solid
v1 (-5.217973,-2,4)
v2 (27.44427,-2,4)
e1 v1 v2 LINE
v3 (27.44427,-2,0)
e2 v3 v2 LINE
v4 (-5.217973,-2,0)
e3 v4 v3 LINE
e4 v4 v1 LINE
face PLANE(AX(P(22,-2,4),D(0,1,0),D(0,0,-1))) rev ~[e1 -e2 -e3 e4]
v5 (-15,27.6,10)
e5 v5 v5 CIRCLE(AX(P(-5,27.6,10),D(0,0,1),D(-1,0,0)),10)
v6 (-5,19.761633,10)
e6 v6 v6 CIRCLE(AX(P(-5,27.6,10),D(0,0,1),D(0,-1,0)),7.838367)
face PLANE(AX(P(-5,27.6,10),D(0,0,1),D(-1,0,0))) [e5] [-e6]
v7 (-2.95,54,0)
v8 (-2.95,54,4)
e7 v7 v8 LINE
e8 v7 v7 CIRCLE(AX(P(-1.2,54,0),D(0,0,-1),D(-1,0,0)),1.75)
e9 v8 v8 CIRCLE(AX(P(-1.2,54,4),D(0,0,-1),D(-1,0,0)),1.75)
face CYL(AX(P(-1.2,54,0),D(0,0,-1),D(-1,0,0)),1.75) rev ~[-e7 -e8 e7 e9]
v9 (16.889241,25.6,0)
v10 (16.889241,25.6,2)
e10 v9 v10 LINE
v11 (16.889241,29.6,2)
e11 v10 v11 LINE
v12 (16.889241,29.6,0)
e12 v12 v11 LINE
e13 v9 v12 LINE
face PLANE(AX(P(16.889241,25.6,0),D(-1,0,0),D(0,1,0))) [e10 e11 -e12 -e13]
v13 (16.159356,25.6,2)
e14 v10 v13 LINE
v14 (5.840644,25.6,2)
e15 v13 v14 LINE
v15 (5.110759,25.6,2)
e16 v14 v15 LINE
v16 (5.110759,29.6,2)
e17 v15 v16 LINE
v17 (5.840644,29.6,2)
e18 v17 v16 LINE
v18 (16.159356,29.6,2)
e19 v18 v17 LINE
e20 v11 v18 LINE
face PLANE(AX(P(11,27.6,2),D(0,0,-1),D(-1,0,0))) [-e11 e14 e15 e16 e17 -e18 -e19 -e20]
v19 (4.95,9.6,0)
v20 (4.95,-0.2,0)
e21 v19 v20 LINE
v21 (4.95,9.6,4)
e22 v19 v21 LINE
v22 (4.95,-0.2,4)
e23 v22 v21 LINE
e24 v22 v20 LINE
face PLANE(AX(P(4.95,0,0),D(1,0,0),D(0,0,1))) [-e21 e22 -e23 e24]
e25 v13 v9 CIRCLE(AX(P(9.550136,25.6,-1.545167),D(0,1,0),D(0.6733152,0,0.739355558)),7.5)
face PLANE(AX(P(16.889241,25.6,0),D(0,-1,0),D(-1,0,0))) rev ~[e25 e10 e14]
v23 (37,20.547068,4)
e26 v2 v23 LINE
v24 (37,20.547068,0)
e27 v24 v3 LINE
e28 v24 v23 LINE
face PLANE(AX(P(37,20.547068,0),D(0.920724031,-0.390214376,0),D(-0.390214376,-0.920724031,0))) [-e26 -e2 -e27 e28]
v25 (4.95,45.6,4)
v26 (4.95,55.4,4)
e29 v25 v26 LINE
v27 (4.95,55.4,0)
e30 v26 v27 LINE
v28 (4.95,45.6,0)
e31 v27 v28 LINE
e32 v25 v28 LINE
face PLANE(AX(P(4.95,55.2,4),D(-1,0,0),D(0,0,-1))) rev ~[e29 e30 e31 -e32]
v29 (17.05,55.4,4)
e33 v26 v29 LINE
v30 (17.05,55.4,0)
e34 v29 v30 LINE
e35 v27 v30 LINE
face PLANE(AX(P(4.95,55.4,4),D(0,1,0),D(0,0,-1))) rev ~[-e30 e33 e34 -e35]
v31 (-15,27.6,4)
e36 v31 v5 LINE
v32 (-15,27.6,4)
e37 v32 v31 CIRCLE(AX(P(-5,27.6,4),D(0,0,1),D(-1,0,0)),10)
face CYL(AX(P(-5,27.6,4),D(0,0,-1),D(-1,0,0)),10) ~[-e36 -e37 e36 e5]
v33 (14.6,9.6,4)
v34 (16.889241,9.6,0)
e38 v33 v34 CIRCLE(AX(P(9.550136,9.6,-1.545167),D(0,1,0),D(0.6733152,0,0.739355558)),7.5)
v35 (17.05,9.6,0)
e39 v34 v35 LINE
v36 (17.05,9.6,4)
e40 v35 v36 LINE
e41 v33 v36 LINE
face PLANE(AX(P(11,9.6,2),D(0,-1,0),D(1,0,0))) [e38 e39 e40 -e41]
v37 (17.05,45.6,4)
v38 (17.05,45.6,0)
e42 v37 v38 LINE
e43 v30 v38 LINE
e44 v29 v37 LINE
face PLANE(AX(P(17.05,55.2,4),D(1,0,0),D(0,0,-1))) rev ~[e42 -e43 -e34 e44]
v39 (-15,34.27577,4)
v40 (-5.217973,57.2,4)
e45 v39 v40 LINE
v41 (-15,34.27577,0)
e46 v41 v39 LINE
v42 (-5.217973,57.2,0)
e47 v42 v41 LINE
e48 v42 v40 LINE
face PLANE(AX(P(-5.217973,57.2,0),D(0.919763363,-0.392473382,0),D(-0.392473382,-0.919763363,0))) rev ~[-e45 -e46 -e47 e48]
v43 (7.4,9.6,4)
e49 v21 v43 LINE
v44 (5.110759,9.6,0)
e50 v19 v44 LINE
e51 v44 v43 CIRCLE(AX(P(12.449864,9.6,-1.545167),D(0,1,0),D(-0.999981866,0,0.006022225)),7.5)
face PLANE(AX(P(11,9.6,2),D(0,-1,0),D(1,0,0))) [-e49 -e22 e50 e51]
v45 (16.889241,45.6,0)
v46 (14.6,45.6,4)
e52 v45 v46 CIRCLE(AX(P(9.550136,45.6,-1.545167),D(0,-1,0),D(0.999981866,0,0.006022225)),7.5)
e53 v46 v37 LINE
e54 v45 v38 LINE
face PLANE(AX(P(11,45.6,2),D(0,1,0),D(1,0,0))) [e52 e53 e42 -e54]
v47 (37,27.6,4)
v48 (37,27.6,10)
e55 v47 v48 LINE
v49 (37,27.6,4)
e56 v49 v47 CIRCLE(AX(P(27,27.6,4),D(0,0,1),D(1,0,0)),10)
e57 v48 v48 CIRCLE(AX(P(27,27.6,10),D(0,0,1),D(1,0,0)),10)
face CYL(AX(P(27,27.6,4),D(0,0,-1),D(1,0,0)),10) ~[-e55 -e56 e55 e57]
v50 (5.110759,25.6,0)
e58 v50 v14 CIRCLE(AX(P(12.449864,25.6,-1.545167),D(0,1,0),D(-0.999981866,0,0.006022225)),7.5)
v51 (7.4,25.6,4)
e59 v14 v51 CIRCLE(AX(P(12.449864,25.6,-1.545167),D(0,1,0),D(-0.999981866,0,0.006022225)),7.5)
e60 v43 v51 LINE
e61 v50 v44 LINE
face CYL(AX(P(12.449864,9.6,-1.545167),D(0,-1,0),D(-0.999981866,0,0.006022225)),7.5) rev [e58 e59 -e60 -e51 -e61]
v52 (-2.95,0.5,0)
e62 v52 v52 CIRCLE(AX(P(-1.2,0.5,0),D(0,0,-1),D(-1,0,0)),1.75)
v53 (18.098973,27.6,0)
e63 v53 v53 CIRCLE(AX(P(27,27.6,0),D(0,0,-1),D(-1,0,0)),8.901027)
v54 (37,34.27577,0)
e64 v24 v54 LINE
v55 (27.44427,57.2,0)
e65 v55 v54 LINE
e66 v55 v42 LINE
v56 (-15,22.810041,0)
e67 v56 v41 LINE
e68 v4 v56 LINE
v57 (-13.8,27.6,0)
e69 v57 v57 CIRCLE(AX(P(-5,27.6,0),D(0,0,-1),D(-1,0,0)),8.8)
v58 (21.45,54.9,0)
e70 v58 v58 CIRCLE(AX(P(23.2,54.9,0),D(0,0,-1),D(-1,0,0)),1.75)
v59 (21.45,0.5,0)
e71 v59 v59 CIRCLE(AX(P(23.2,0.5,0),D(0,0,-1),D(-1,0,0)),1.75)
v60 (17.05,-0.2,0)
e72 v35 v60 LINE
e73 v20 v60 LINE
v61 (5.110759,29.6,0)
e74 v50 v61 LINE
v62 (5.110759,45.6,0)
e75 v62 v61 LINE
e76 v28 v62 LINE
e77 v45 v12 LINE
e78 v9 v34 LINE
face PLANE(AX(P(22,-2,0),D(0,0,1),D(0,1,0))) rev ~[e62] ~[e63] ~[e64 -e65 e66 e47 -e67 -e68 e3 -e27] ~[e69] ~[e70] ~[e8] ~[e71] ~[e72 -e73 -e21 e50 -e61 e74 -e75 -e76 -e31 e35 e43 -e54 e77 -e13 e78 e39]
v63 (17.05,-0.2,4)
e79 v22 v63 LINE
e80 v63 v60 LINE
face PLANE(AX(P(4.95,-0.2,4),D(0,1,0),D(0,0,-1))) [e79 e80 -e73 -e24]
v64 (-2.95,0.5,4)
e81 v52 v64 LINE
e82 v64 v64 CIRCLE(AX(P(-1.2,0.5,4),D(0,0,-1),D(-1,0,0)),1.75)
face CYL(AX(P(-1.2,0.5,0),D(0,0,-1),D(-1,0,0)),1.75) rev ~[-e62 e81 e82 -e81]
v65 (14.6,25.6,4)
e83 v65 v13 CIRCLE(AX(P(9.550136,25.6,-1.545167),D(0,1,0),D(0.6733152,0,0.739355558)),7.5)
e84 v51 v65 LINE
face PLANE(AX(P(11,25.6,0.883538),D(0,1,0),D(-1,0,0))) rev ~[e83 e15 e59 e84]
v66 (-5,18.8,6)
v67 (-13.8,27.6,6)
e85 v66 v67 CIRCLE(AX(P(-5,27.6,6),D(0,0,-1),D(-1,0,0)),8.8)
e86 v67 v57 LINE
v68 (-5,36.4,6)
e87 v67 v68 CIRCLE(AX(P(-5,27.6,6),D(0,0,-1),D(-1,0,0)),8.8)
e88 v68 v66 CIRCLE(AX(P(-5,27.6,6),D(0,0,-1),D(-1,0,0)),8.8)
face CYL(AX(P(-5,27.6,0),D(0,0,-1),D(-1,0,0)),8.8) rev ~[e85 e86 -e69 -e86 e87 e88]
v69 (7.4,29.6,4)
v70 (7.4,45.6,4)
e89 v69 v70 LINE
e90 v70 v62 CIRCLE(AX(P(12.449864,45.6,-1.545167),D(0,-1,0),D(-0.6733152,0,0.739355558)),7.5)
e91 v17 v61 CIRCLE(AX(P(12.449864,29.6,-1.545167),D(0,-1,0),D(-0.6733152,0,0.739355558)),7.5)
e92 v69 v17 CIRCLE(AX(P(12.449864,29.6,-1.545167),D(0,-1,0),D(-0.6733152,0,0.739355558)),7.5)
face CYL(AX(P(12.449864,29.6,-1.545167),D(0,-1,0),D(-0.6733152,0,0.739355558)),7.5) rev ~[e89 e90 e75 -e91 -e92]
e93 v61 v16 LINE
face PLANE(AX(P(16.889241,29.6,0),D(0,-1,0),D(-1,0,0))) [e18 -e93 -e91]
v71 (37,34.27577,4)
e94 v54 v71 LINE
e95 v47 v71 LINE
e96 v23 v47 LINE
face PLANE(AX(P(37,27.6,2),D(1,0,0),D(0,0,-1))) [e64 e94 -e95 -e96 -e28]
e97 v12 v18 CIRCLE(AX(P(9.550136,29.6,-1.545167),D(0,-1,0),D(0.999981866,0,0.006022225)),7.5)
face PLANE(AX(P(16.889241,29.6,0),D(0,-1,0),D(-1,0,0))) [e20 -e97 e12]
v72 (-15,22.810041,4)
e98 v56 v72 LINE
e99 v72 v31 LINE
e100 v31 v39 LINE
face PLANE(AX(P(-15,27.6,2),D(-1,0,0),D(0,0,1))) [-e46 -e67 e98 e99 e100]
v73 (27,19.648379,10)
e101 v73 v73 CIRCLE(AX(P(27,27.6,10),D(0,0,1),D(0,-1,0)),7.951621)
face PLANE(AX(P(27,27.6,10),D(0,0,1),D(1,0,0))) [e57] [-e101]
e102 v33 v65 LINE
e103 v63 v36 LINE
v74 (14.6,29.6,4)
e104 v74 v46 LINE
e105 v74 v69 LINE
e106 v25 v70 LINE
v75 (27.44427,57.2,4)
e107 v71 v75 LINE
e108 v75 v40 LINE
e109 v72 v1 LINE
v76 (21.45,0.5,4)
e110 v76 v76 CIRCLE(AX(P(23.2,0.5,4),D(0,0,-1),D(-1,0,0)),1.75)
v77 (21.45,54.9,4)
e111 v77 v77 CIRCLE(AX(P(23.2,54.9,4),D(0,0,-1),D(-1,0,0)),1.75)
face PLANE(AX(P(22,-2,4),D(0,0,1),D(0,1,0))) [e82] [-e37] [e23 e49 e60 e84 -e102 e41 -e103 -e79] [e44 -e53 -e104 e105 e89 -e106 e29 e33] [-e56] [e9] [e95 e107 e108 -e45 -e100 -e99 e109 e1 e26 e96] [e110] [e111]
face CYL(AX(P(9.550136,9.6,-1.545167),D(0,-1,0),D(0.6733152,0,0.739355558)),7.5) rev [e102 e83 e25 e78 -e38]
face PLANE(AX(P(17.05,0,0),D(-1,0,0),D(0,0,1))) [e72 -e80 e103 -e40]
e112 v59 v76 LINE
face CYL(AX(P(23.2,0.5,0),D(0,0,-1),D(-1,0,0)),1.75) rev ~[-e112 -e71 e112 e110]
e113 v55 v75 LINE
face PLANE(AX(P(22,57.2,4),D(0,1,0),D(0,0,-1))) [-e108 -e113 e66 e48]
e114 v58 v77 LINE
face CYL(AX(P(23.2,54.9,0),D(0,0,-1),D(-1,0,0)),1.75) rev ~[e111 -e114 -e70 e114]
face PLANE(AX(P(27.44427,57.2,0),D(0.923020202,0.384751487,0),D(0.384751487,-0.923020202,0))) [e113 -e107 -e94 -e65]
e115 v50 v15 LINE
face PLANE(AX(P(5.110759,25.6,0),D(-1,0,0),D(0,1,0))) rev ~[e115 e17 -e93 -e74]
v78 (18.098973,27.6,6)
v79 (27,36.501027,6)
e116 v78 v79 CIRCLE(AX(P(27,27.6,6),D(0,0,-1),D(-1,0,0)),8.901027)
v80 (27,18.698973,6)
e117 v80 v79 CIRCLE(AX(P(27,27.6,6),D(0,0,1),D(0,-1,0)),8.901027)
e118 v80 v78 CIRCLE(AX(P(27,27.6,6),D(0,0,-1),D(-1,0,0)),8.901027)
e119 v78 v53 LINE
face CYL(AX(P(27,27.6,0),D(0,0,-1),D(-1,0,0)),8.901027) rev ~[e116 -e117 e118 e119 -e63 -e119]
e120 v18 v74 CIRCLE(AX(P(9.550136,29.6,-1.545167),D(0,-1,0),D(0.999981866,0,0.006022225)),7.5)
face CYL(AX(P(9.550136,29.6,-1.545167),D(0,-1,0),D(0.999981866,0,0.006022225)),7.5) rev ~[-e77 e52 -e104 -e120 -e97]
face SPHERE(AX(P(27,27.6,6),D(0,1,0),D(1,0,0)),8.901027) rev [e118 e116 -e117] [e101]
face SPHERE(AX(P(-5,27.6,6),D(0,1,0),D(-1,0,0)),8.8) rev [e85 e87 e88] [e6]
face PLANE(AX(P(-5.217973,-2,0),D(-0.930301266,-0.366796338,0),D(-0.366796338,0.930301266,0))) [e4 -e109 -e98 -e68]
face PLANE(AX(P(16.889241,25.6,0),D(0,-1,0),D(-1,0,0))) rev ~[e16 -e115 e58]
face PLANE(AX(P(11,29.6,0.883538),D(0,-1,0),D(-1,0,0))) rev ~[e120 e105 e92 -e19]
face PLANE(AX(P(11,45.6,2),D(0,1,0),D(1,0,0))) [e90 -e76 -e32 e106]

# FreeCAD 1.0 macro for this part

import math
import FreeCAD as App
import Part
import Sketcher

V = App.Vector
Q = App.Units.Quantity

doc = App.newDocument("Part")
body = doc.addObject("PartDesign::Body", "Body")

sketch1 = doc.addObject("Sketcher::SketchObject", "Sketch")
body.addObject(sketch1)
sketch1.AttachmentSupport = (doc.XY_Plane, [""])
sketch1.MapMode = "FlatFace"
sketch1.addGeometry([
    Part.LineSegment(V(0, 55.2, 0), V(0, 0, 0)),
    Part.LineSegment(V(0, 0, 0), V(22, 0, 0)),
    Part.LineSegment(V(22, 0, 0), V(22, 55.2, 0)),
    Part.LineSegment(V(22, 55.2, 0), V(0, 55.2, 0)),
], False)
sketch1.addConstraint([
    Sketcher.Constraint("Coincident", 0, 2, 1, 1),
    Sketcher.Constraint("Coincident", 1, 2, 2, 1),
    Sketcher.Constraint("Coincident", 2, 2, 3, 1),
    Sketcher.Constraint("Coincident", 3, 2, 0, 1),
    Sketcher.Constraint("Vertical", 0),
    Sketcher.Constraint("Horizontal", 1),
    Sketcher.Constraint("Vertical", 2),
    Sketcher.Constraint("Horizontal", 3),
    Sketcher.Constraint("Coincident", 0, 2, -1, 1),
    Sketcher.Constraint("DistanceX", 1, 1, 1, 2, Q("22 mm")),
    Sketcher.Constraint("DistanceY", 0, 2, 0, 1, Q("55.2 mm")),
])
pad1 = doc.addObject("PartDesign::Pad", "Pad")
body.addObject(pad1)
pad1.Profile = sketch1
pad1.Length = 4

sketch2 = doc.addObject("Sketcher::SketchObject", "Sketch001")
body.addObject(sketch2)
sketch2.AttachmentSupport = (doc.XZ_Plane, [""])
sketch2.MapMode = "FlatFace"
sketch2.AttachmentOffset = App.Placement(V(0, 0, -55.2), App.Rotation())
sketch2.addGeometry([
    Part.LineSegment(V(4.95, 0, 0), V(4.95, 4, 0)),
    Part.LineSegment(V(4.95, 4, 0), V(17.05, 4, 0)),
    Part.LineSegment(V(17.05, 4, 0), V(17.05, 0, 0)),
    Part.LineSegment(V(17.05, 0, 0), V(4.95, 0, 0)),
], False)
sketch2.addConstraint([
    Sketcher.Constraint("Coincident", 0, 2, 1, 1),
    Sketcher.Constraint("Coincident", 1, 2, 2, 1),
    Sketcher.Constraint("Coincident", 2, 2, 3, 1),
    Sketcher.Constraint("Coincident", 3, 2, 0, 1),
    Sketcher.Constraint("Vertical", 0),
    Sketcher.Constraint("Horizontal", 1),
    Sketcher.Constraint("Vertical", 2),
    Sketcher.Constraint("Horizontal", 3),
    Sketcher.Constraint("PointOnObject", 2, 2, -1),
    Sketcher.Constraint("DistanceY", 0, 1, 0, 2, Q("4 mm")),
    Sketcher.Constraint("DistanceX", 1, 1, 1, 2, Q("12.1 mm")),
    Sketcher.Constraint("DistanceX", -1, 1, 0, 2, Q("4.95 mm")),
])
pocket1 = doc.addObject("PartDesign::Pocket", "Pocket")
body.addObject(pocket1)
pocket1.Profile = sketch2
pocket1.Length = 9.6
pocket1.Reversed = True

sketch3 = doc.addObject("Sketcher::SketchObject", "Sketch002")
body.addObject(sketch3)
sketch3.AttachmentSupport = (doc.XZ_Plane, [""])
sketch3.MapMode = "FlatFace"
sketch3.addGeometry([
    Part.LineSegment(V(4.95, 4, 0), V(4.95, 0, 0)),
    Part.LineSegment(V(4.95, 0, 0), V(17.05, 0, 0)),
    Part.LineSegment(V(17.05, 0, 0), V(17.05, 4, 0)),
    Part.LineSegment(V(17.05, 4, 0), V(4.95, 4, 0)),
], False)
sketch3.addConstraint([
    Sketcher.Constraint("Coincident", 0, 2, 1, 1),
    Sketcher.Constraint("Coincident", 1, 2, 2, 1),
    Sketcher.Constraint("Coincident", 2, 2, 3, 1),
    Sketcher.Constraint("Coincident", 3, 2, 0, 1),
    Sketcher.Constraint("Vertical", 0),
    Sketcher.Constraint("Horizontal", 1),
    Sketcher.Constraint("Vertical", 2),
    Sketcher.Constraint("Horizontal", 3),
    Sketcher.Constraint("PointOnObject", 0, 2, -1),
    Sketcher.Constraint("DistanceY", 0, 2, 0, 1, Q("4 mm")),
    Sketcher.Constraint("DistanceX", 1, 1, 1, 2, Q("12.1 mm")),
    Sketcher.Constraint("DistanceX", -1, 1, 0, 2, Q("4.95 mm")),
])
pocket2 = doc.addObject("PartDesign::Pocket", "Pocket001")
body.addObject(pocket2)
pocket2.Profile = sketch3
pocket2.Length = 9.6

sketch4 = doc.addObject("Sketcher::SketchObject", "Sketch003")
body.addObject(sketch4)
sketch4.AttachmentSupport = (doc.XZ_Plane, [""])
sketch4.MapMode = "FlatFace"
sketch4.AttachmentOffset = App.Placement(V(0, 0, -9.6), App.Rotation())
sketch4.addGeometry([
    Part.LineSegment(V(14.6, 4, 0), V(7.4, 4, 0)),
    Part.ArcOfCircle(Part.Circle(V(12.449864, -1.545167, 0), V(0, 0, 1), 7.5), math.radians(132.323452), math.radians(179.65495)),
    Part.LineSegment(V(4.95, -1.5, 0), V(17.05, -1.5, 0)),
    Part.ArcOfCircle(Part.Circle(V(9.550136, -1.545167, 0), V(0, 0, 1), 7.5), math.radians(0.34505), math.radians(47.676548)),
], False)
sketch4.addConstraint([
    Sketcher.Constraint("Coincident", 0, 2, 1, 1),
    Sketcher.Constraint("Coincident", 1, 2, 2, 1),
    Sketcher.Constraint("Coincident", 2, 2, 3, 1),
    Sketcher.Constraint("Coincident", 3, 2, 0, 1),
    Sketcher.Constraint("Horizontal", 0),
    Sketcher.Constraint("Horizontal", 2),
    Sketcher.Constraint("Equal", 1, 3),
    Sketcher.Constraint("Horizontal", 1, 3, 3, 3),
    Sketcher.Constraint("Radius", 1, Q("7.5 mm")),
    Sketcher.Constraint("DistanceX", 0, 2, 0, 1, Q("7.2 mm")),
    Sketcher.Constraint("DistanceX", 2, 1, 2, 2, Q("12.1 mm")),
    Sketcher.Constraint("DistanceY", -1, 1, 0, 2, Q("4 mm")),
    Sketcher.Constraint("DistanceX", -1, 1, 0, 2, Q("7.4 mm")),
    Sketcher.Constraint("DistanceY", 1, 2, -1, 1, Q("1.5 mm")),
])
pocket3 = doc.addObject("PartDesign::Pocket", "Pocket002")
body.addObject(pocket3)
pocket3.Profile = sketch4
pocket3.Length = 16

sketch5 = doc.addObject("Sketcher::SketchObject", "Sketch004")
body.addObject(sketch5)
sketch5.AttachmentSupport = (doc.XZ_Plane, [""])
sketch5.MapMode = "FlatFace"
sketch5.AttachmentOffset = App.Placement(V(0, 0, -29.6), App.Rotation())
sketch5.addGeometry([
    Part.LineSegment(V(17.05, -1.5, 0), V(4.95, -1.5, 0)),
    Part.ArcOfCircle(Part.Circle(V(12.449864, -1.545167, 0), V(0, 0, 1), 7.5), math.radians(132.323452), math.radians(179.65495)),
    Part.LineSegment(V(7.4, 4, 0), V(14.6, 4, 0)),
    Part.ArcOfCircle(Part.Circle(V(9.550136, -1.545167, 0), V(0, 0, 1), 7.5), math.radians(0.34505), math.radians(47.676548)),
], False)
sketch5.addConstraint([
    Sketcher.Constraint("Coincident", 0, 2, 1, 2),
    Sketcher.Constraint("Coincident", 1, 1, 2, 1),
    Sketcher.Constraint("Coincident", 2, 2, 3, 2),
    Sketcher.Constraint("Coincident", 3, 1, 0, 1),
    Sketcher.Constraint("Horizontal", 0),
    Sketcher.Constraint("Horizontal", 2),
    Sketcher.Constraint("Equal", 1, 3),
    Sketcher.Constraint("Horizontal", 1, 3, 3, 3),
    Sketcher.Constraint("Radius", 1, Q("7.5 mm")),
    Sketcher.Constraint("DistanceX", 0, 2, 0, 1, Q("12.1 mm")),
    Sketcher.Constraint("DistanceX", 2, 1, 2, 2, Q("7.2 mm")),
    Sketcher.Constraint("DistanceY", -1, 1, 1, 1, Q("4 mm")),
    Sketcher.Constraint("DistanceY", 0, 2, -1, 1, Q("1.5 mm")),
    Sketcher.Constraint("DistanceX", -1, 1, 1, 1, Q("7.4 mm")),
])
pocket4 = doc.addObject("PartDesign::Pocket", "Pocket003")
body.addObject(pocket4)
pocket4.Profile = sketch5
pocket4.Length = 16

sketch6 = doc.addObject("Sketcher::SketchObject", "Sketch005")
body.addObject(sketch6)
sketch6.AttachmentSupport = (doc.XY_Plane, [""])
sketch6.MapMode = "FlatFace"
sketch6.addGeometry([
    Part.LineSegment(V(16.889241, 29.6, 0), V(16.889241, 25.6, 0)),
    Part.LineSegment(V(16.889241, 25.6, 0), V(5.110759, 25.6, 0)),
    Part.LineSegment(V(5.110759, 25.6, 0), V(5.110759, 29.6, 0)),
    Part.LineSegment(V(5.110759, 29.6, 0), V(16.889241, 29.6, 0)),
], False)
sketch6.addConstraint([
    Sketcher.Constraint("Coincident", 0, 2, 1, 1),
    Sketcher.Constraint("Coincident", 1, 2, 2, 1),
    Sketcher.Constraint("Coincident", 2, 2, 3, 1),
    Sketcher.Constraint("Coincident", 3, 2, 0, 1),
    Sketcher.Constraint("Vertical", 0),
    Sketcher.Constraint("Horizontal", 1),
    Sketcher.Constraint("Vertical", 2),
    Sketcher.Constraint("Horizontal", 3),
    Sketcher.Constraint("DistanceY", 0, 2, 0, 1, Q("4 mm")),
    Sketcher.Constraint("DistanceY", -1, 1, 0, 2, Q("25.6 mm")),
    Sketcher.Constraint("DistanceX", 1, 2, 1, 1, Q("11.778482 mm")),
    Sketcher.Constraint("DistanceX", -1, 1, 0, 2, Q("16.889241 mm")),
])
pocket5 = doc.addObject("PartDesign::Pocket", "Pocket004")
body.addObject(pocket5)
pocket5.Profile = sketch6
pocket5.Length = 2
pocket5.Reversed = True

sketch7 = doc.addObject("Sketcher::SketchObject", "Sketch006")
body.addObject(sketch7)
sketch7.AttachmentSupport = (doc.XZ_Plane, [""])
sketch7.MapMode = "FlatFace"
sketch7.AttachmentOffset = App.Placement(V(0, 0, -55.2), App.Rotation())
sketch7.addGeometry([
    Part.LineSegment(V(0, 0, 0), V(0, 4, 0)),
    Part.LineSegment(V(0, 4, 0), V(4.95, 4, 0)),
    Part.LineSegment(V(4.95, 4, 0), V(4.95, 0, 0)),
    Part.LineSegment(V(4.95, 0, 0), V(0, 0, 0)),
    Part.LineSegment(V(17.05, 0, 0), V(17.05, 4, 0)),
    Part.LineSegment(V(17.05, 4, 0), V(22, 4, 0)),
    Part.LineSegment(V(22, 4, 0), V(22, 0, 0)),
    Part.LineSegment(V(22, 0, 0), V(17.05, 0, 0)),
], False)
sketch7.addConstraint([
    Sketcher.Constraint("Coincident", 0, 2, 1, 1),
    Sketcher.Constraint("Coincident", 1, 2, 2, 1),
    Sketcher.Constraint("Coincident", 2, 2, 3, 1),
    Sketcher.Constraint("Coincident", 3, 2, 0, 1),
    Sketcher.Constraint("Coincident", 4, 2, 5, 1),
    Sketcher.Constraint("Coincident", 5, 2, 6, 1),
    Sketcher.Constraint("Coincident", 6, 2, 7, 1),
    Sketcher.Constraint("Coincident", 7, 2, 4, 1),
    Sketcher.Constraint("Vertical", 0),
    Sketcher.Constraint("Horizontal", 1),
    Sketcher.Constraint("Vertical", 2),
    Sketcher.Constraint("Horizontal", 3),
    Sketcher.Constraint("Vertical", 4),
    Sketcher.Constraint("Horizontal", 5),
    Sketcher.Constraint("Vertical", 6),
    Sketcher.Constraint("Horizontal", 7),
    Sketcher.Constraint("Coincident", 3, 2, -1, 1),
    Sketcher.Constraint("PointOnObject", 6, 2, -1),
    Sketcher.Constraint("Horizontal", 1, 2, 4, 2),
    Sketcher.Constraint("Equal", 3, 5),
    Sketcher.Constraint("DistanceY", 0, 1, 0, 2, Q("4 mm")),
    Sketcher.Constraint("DistanceX", -1, 1, 5, 2, Q("22 mm")),
    Sketcher.Constraint("DistanceX", 1, 1, 1, 2, Q("4.95 mm")),
])
pad2 = doc.addObject("PartDesign::Pad", "Pad001")
body.addObject(pad2)
pad2.Profile = sketch7
pad2.Length = 2
pad2.Reversed = True

sketch8 = doc.addObject("Sketcher::SketchObject", "Sketch007")
body.addObject(sketch8)
sketch8.AttachmentSupport = (doc.YZ_Plane, [""])
sketch8.MapMode = "FlatFace"
sketch8.AttachmentOffset = App.Placement(V(0, 0, 4.95), App.Rotation())
sketch8.addGeometry([
    Part.LineSegment(V(57.2, 4, 0), V(55.4, 4, 0)),
    Part.LineSegment(V(55.4, 4, 0), V(55.4, 0, 0)),
    Part.LineSegment(V(55.4, 0, 0), V(57.2, 0, 0)),
    Part.LineSegment(V(57.2, 0, 0), V(57.2, 4, 0)),
], False)
sketch8.addConstraint([
    Sketcher.Constraint("Coincident", 0, 2, 1, 1),
    Sketcher.Constraint("Coincident", 1, 2, 2, 1),
    Sketcher.Constraint("Coincident", 2, 2, 3, 1),
    Sketcher.Constraint("Coincident", 3, 2, 0, 1),
    Sketcher.Constraint("Horizontal", 0),
    Sketcher.Constraint("Vertical", 1),
    Sketcher.Constraint("Horizontal", 2),
    Sketcher.Constraint("Vertical", 3),
    Sketcher.Constraint("PointOnObject", 1, 2, -1),
    Sketcher.Constraint("DistanceY", 1, 2, 1, 1, Q("4 mm")),
    Sketcher.Constraint("DistanceX", 0, 2, 0, 1, Q("1.8 mm")),
    Sketcher.Constraint("DistanceX", -1, 1, 0, 2, Q("55.4 mm")),
])
pad3 = doc.addObject("PartDesign::Pad", "Pad002")
body.addObject(pad3)
pad3.Profile = sketch8
pad3.Length = 12.1

sketch9 = doc.addObject("Sketcher::SketchObject", "Sketch008")
body.addObject(sketch9)
sketch9.AttachmentSupport = (doc.XZ_Plane, [""])
sketch9.MapMode = "FlatFace"
sketch9.addGeometry([
    Part.LineSegment(V(17.05, 4, 0), V(17.05, 0, 0)),
    Part.LineSegment(V(17.05, 0, 0), V(22, 0, 0)),
    Part.LineSegment(V(22, 0, 0), V(22, 4, 0)),
    Part.LineSegment(V(22, 4, 0), V(17.05, 4, 0)),
    Part.LineSegment(V(0, 4, 0), V(0, 0, 0)),
    Part.LineSegment(V(0, 0, 0), V(4.95, 0, 0)),
    Part.LineSegment(V(4.95, 0, 0), V(4.95, 4, 0)),
    Part.LineSegment(V(4.95, 4, 0), V(0, 4, 0)),
], False)
sketch9.addConstraint([
    Sketcher.Constraint("Coincident", 0, 2, 1, 1),
    Sketcher.Constraint("Coincident", 1, 2, 2, 1),
    Sketcher.Constraint("Coincident", 2, 2, 3, 1),
    Sketcher.Constraint("Coincident", 3, 2, 0, 1),
    Sketcher.Constraint("Coincident", 4, 2, 5, 1),
    Sketcher.Constraint("Coincident", 5, 2, 6, 1),
    Sketcher.Constraint("Coincident", 6, 2, 7, 1),
    Sketcher.Constraint("Coincident", 7, 2, 4, 1),
    Sketcher.Constraint("Vertical", 0),
    Sketcher.Constraint("Horizontal", 1),
    Sketcher.Constraint("Vertical", 2),
    Sketcher.Constraint("Horizontal", 3),
    Sketcher.Constraint("Vertical", 4),
    Sketcher.Constraint("Horizontal", 5),
    Sketcher.Constraint("Vertical", 6),
    Sketcher.Constraint("Horizontal", 7),
    Sketcher.Constraint("Coincident", 4, 2, -1, 1),
    Sketcher.Constraint("PointOnObject", 0, 2, -1),
    Sketcher.Constraint("Horizontal", 3, 2, 6, 2),
    Sketcher.Constraint("Equal", 3, 5),
    Sketcher.Constraint("DistanceY", 0, 2, 0, 1, Q("4 mm")),
    Sketcher.Constraint("DistanceX", -1, 1, 1, 2, Q("22 mm")),
    Sketcher.Constraint("DistanceX", 1, 1, 1, 2, Q("4.95 mm")),
])
pad4 = doc.addObject("PartDesign::Pad", "Pad003")
body.addObject(pad4)
pad4.Profile = sketch9
pad4.Length = 2

sketch10 = doc.addObject("Sketcher::SketchObject", "Sketch009")
body.addObject(sketch10)
sketch10.AttachmentSupport = (doc.YZ_Plane, [""])
sketch10.MapMode = "FlatFace"
sketch10.AttachmentOffset = App.Placement(V(0, 0, 4.95), App.Rotation())
sketch10.addGeometry([
    Part.LineSegment(V(-0.2, 4, 0), V(-2, 4, 0)),
    Part.LineSegment(V(-2, 4, 0), V(-2, 0, 0)),
    Part.LineSegment(V(-2, 0, 0), V(-0.2, 0, 0)),
    Part.LineSegment(V(-0.2, 0, 0), V(-0.2, 4, 0)),
], False)
sketch10.addConstraint([
    Sketcher.Constraint("Coincident", 0, 2, 1, 1),
    Sketcher.Constraint("Coincident", 1, 2, 2, 1),
    Sketcher.Constraint("Coincident", 2, 2, 3, 1),
    Sketcher.Constraint("Coincident", 3, 2, 0, 1),
    Sketcher.Constraint("Horizontal", 0),
    Sketcher.Constraint("Vertical", 1),
    Sketcher.Constraint("Horizontal", 2),
    Sketcher.Constraint("Vertical", 3),
    Sketcher.Constraint("PointOnObject", 1, 2, -1),
    Sketcher.Constraint("DistanceY", 1, 2, 1, 1, Q("4 mm")),
    Sketcher.Constraint("DistanceX", 0, 2, 0, 1, Q("1.8 mm")),
    Sketcher.Constraint("DistanceX", 0, 2, -1, 1, Q("2 mm")),
])
pad5 = doc.addObject("PartDesign::Pad", "Pad004")
body.addObject(pad5)
pad5.Profile = sketch10
pad5.Length = 12.1

sketch11 = doc.addObject("Sketcher::SketchObject", "Sketch010")
body.addObject(sketch11)
sketch11.AttachmentSupport = (doc.YZ_Plane, [""])
sketch11.MapMode = "FlatFace"
sketch11.addGeometry([
    Part.LineSegment(V(57.2, 0, 0), V(-2, 0, 0)),
    Part.LineSegment(V(-2, 0, 0), V(-2, 4, 0)),
    Part.LineSegment(V(-2, 4, 0), V(57.2, 4, 0)),
    Part.LineSegment(V(57.2, 4, 0), V(57.2, 0, 0)),
], False)
sketch11.addConstraint([
    Sketcher.Constraint("Coincident", 0, 2, 1, 1),
    Sketcher.Constraint("Coincident", 1, 2, 2, 1),
    Sketcher.Constraint("Coincident", 2, 2, 3, 1),
    Sketcher.Constraint("Coincident", 3, 2, 0, 1),
    Sketcher.Constraint("Horizontal", 0),
    Sketcher.Constraint("Vertical", 1),
    Sketcher.Constraint("Horizontal", 2),
    Sketcher.Constraint("Vertical", 3),
    Sketcher.Constraint("PointOnObject", 0, 2, -1),
    Sketcher.Constraint("DistanceY", 1, 1, 1, 2, Q("4 mm")),
    Sketcher.Constraint("DistanceX", 0, 2, 0, 1, Q("59.2 mm")),
    Sketcher.Constraint("DistanceX", 0, 2, -1, 1, Q("2 mm")),
])
pad6 = doc.addObject("PartDesign::Pad", "Pad005")
body.addObject(pad6)
pad6.Profile = sketch11
pad6.Length = 15
pad6.Reversed = True

sketch12 = doc.addObject("Sketcher::SketchObject", "Sketch011")
body.addObject(sketch12)
sketch12.AttachmentSupport = (doc.YZ_Plane, [""])
sketch12.MapMode = "FlatFace"
sketch12.AttachmentOffset = App.Placement(V(0, 0, 22), App.Rotation())
sketch12.addGeometry([
    Part.LineSegment(V(57.2, 4, 0), V(-2, 4, 0)),
    Part.LineSegment(V(-2, 4, 0), V(-2, 0, 0)),
    Part.LineSegment(V(-2, 0, 0), V(57.2, 0, 0)),
    Part.LineSegment(V(57.2, 0, 0), V(57.2, 4, 0)),
], False)
sketch12.addConstraint([
    Sketcher.Constraint("Coincident", 0, 2, 1, 1),
    Sketcher.Constraint("Coincident", 1, 2, 2, 1),
    Sketcher.Constraint("Coincident", 2, 2, 3, 1),
    Sketcher.Constraint("Coincident", 3, 2, 0, 1),
    Sketcher.Constraint("Horizontal", 0),
    Sketcher.Constraint("Vertical", 1),
    Sketcher.Constraint("Horizontal", 2),
    Sketcher.Constraint("Vertical", 3),
    Sketcher.Constraint("PointOnObject", 1, 2, -1),
    Sketcher.Constraint("DistanceY", 1, 2, 1, 1, Q("4 mm")),
    Sketcher.Constraint("DistanceX", 0, 2, 0, 1, Q("59.2 mm")),
    Sketcher.Constraint("DistanceX", 0, 2, -1, 1, Q("2 mm")),
])
pad7 = doc.addObject("PartDesign::Pad", "Pad006")
body.addObject(pad7)
pad7.Profile = sketch12
pad7.Length = 15

sketch13 = doc.addObject("Sketcher::SketchObject", "Sketch012")
body.addObject(sketch13)
sketch13.AttachmentSupport = (doc.XY_Plane, [""])
sketch13.MapMode = "FlatFace"
sketch13.addGeometry([
    Part.Circle(V(23.2, 54.9, 0), V(0, 0, 1), 1.75),
    Part.Circle(V(-1.2, 54, 0), V(0, 0, 1), 1.75),
    Part.Circle(V(-1.2, 0.5, 0), V(0, 0, 1), 1.75),
    Part.Circle(V(23.2, 0.5, 0), V(0, 0, 1), 1.75),
], False)
sketch13.addConstraint([
    Sketcher.Constraint("Equal", 0, 1),
    Sketcher.Constraint("Equal", 1, 2),
    Sketcher.Constraint("Equal", 2, 3),
    Sketcher.Constraint("Horizontal", 2, 3, 3, 3),
    Sketcher.Constraint("Vertical", 1, 3, 2, 3),
    Sketcher.Constraint("Vertical", 0, 3, 3, 3),
    Sketcher.Constraint("Diameter", 0, Q("3.5 mm")),
    Sketcher.Constraint("DistanceY", -1, 1, 1, 3, Q("54 mm")),
    Sketcher.Constraint("DistanceX", -1, 1, 0, 3, Q("23.2 mm")),
    Sketcher.Constraint("DistanceY", -1, 1, 0, 3, Q("54.9 mm")),
    Sketcher.Constraint("DistanceX", 1, 3, -1, 1, Q("1.2 mm")),
    Sketcher.Constraint("DistanceY", -1, 1, 2, 3, Q("0.5 mm")),
])
pocket6 = doc.addObject("PartDesign::Pocket", "Pocket005")
body.addObject(pocket6)
pocket6.Profile = sketch13
pocket6.Length = 11.5
pocket6.Reversed = True

sketch14 = doc.addObject("Sketcher::SketchObject", "Sketch013")
body.addObject(sketch14)
sketch14.AttachmentSupport = (doc.XY_Plane, [""])
sketch14.MapMode = "FlatFace"
sketch14.addGeometry([
    Part.Circle(V(-5, 27.6, 0), V(0, 0, 1), 8.8),
    Part.Circle(V(27, 27.6, 0), V(0, 0, 1), 8.901027),
], False)
sketch14.addConstraint([
    Sketcher.Constraint("Horizontal", 0, 3, 1, 3),
    Sketcher.Constraint("Diameter", 0, Q("17.6 mm")),
    Sketcher.Constraint("DistanceX", 0, 3, -1, 1, Q("5 mm")),
    Sketcher.Constraint("DistanceX", -1, 1, 1, 3, Q("27 mm")),
    Sketcher.Constraint("DistanceY", -1, 1, 0, 3, Q("27.6 mm")),
    Sketcher.Constraint("Diameter", 1, Q("17.802054 mm")),
])
pocket7 = doc.addObject("PartDesign::Pocket", "Pocket006")
body.addObject(pocket7)
pocket7.Profile = sketch14
pocket7.Length = 4
pocket7.Reversed = True

sketch15 = doc.addObject("Sketcher::SketchObject", "Sketch014")
body.addObject(sketch15)
sketch15.AttachmentSupport = (doc.XY_Plane, [""])
sketch15.MapMode = "FlatFace"
sketch15.AttachmentOffset = App.Placement(V(0, 0, 4), App.Rotation())
sketch15.addGeometry([
    Part.Circle(V(-5, 27.6, 0), V(0, 0, 1), 10),
    Part.Circle(V(27, 27.6, 0), V(0, 0, 1), 10),
], False)
sketch15.addConstraint([
    Sketcher.Constraint("Equal", 0, 1),
    Sketcher.Constraint("Horizontal", 0, 3, 1, 3),
    Sketcher.Constraint("Diameter", 0, Q("20 mm")),
    Sketcher.Constraint("DistanceX", 0, 3, -1, 1, Q("5 mm")),
    Sketcher.Constraint("DistanceX", -1, 1, 1, 3, Q("27 mm")),
    Sketcher.Constraint("DistanceY", -1, 1, 0, 3, Q("27.6 mm")),
])
pad8 = doc.addObject("PartDesign::Pad", "Pad007")
body.addObject(pad8)
pad8.Profile = sketch15
pad8.Length = 6

sketch16 = doc.addObject("Sketcher::SketchObject", "Sketch015")
body.addObject(sketch16)
sketch16.AttachmentSupport = (doc.XY_Plane, [""])
sketch16.MapMode = "FlatFace"
sketch16.addGeometry([
    Part.LineSegment(V(37, 34.27577, 0), V(27.44427, 57.2, 0)),
    Part.LineSegment(V(27.44427, 57.2, 0), V(37, 57.2, 0)),
    Part.LineSegment(V(37, 57.2, 0), V(37, 34.27577, 0)),
    Part.LineSegment(V(-5.217973, 57.2, 0), V(-15, 34.27577, 0)),
    Part.LineSegment(V(-15, 34.27577, 0), V(-15, 57.2, 0)),
    Part.LineSegment(V(-15, 57.2, 0), V(-5.217973, 57.2, 0)),
    Part.LineSegment(V(27.44427, -2, 0), V(37, 20.547068, 0)),
    Part.LineSegment(V(37, 20.547068, 0), V(37, -2, 0)),
    Part.LineSegment(V(37, -2, 0), V(27.44427, -2, 0)),
    Part.LineSegment(V(-15, 22.810041, 0), V(-5.217973, -2, 0)),
    Part.LineSegment(V(-5.217973, -2, 0), V(-15, -2, 0)),
    Part.LineSegment(V(-15, -2, 0), V(-15, 22.810041, 0)),
], False)
sketch16.addConstraint([
    Sketcher.Constraint("Coincident", 0, 2, 1, 1),
    Sketcher.Constraint("Coincident", 1, 2, 2, 1),
    Sketcher.Constraint("Coincident", 2, 2, 0, 1),
    Sketcher.Constraint("Coincident", 3, 2, 4, 1),
    Sketcher.Constraint("Coincident", 4, 2, 5, 1),
    Sketcher.Constraint("Coincident", 5, 2, 3, 1),
    Sketcher.Constraint("Coincident", 6, 2, 7, 1),
    Sketcher.Constraint("Coincident", 7, 2, 8, 1),
    Sketcher.Constraint("Coincident", 8, 2, 6, 1),
    Sketcher.Constraint("Coincident", 9, 2, 10, 1),
    Sketcher.Constraint("Coincident", 10, 2, 11, 1),
    Sketcher.Constraint("Coincident", 11, 2, 9, 1),
    Sketcher.Constraint("Horizontal", 1),
    Sketcher.Constraint("Vertical", 2),
    Sketcher.Constraint("Vertical", 4),
    Sketcher.Constraint("Horizontal", 5),
    Sketcher.Constraint("Vertical", 7),
    Sketcher.Constraint("Horizontal", 8),
    Sketcher.Constraint("Horizontal", 10),
    Sketcher.Constraint("Vertical", 11),
    Sketcher.Constraint("Horizontal", 2, 2, 3, 2),
    Sketcher.Constraint("Horizontal", 1, 2, 4, 2),
    Sketcher.Constraint("Horizontal", 8, 2, 9, 2),
    Sketcher.Constraint("Vertical", 2, 2, 6, 2),
    Sketcher.Constraint("Vertical", 0, 2, 8, 2),
    Sketcher.Constraint("Vertical", 5, 2, 9, 2),
    Sketcher.Constraint("Vertical", 4, 2, 10, 2),
    Sketcher.Constraint("DistanceX", -1, 1, 1, 2, Q("37 mm")),
    Sketcher.Constraint("DistanceX", 3, 2, -1, 1, Q("15 mm")),
    Sketcher.Constraint("DistanceY", 7, 2, -1, 1, Q("2 mm")),
    Sketcher.Constraint("DistanceY", -1, 1, 0, 2, Q("57.2 mm")),
    Sketcher.Constraint("DistanceX", 1, 1, 1, 2, Q("9.55573 mm")),
    Sketcher.Constraint("DistanceY", 2, 2, 2, 1, Q("22.92423 mm")),
    Sketcher.Constraint("DistanceY", 11, 1, 11, 2, Q("24.810041 mm")),
    Sketcher.Constraint("Distance", 3, Q("24.924052 mm")),
    Sketcher.Constraint("Distance", 6, Q("24.48841 mm")),
])
pocket8 = doc.addObject("PartDesign::Pocket", "Pocket007")
body.addObject(pocket8)
pocket8.Profile = sketch16
pocket8.Length = 10
pocket8.Reversed = True

sketch17 = doc.addObject("Sketcher::SketchObject", "Sketch016")
body.addObject(sketch17)
sketch17.AttachmentSupport = (doc.XY_Plane, [""])
sketch17.MapMode = "FlatFace"
sketch17.AttachmentOffset = App.Placement(V(0, 0, 4), App.Rotation())
sketch17.addGeometry([
    Part.Circle(V(27, 27.6, 0), V(0, 0, 1), 8.901027),
    Part.Circle(V(-5, 27.6, 0), V(0, 0, 1), 8.8),
], False)
sketch17.addConstraint([
    Sketcher.Constraint("Horizontal", 0, 3, 1, 3),
    Sketcher.Constraint("Diameter", 1, Q("17.6 mm")),
    Sketcher.Constraint("DistanceX", -1, 1, 0, 3, Q("27 mm")),
    Sketcher.Constraint("DistanceX", 1, 3, -1, 1, Q("5 mm")),
    Sketcher.Constraint("DistanceY", -1, 1, 0, 3, Q("27.6 mm")),
    Sketcher.Constraint("Diameter", 0, Q("17.802054 mm")),
])
pocket9 = doc.addObject("PartDesign::Pocket", "Pocket008")
body.addObject(pocket9)
pocket9.Profile = sketch17
pocket9.Length = 2
pocket9.Reversed = True

sketch18 = doc.addObject("Sketcher::SketchObject", "Sketch017")
body.addObject(sketch18)
sketch18.AttachmentSupport = (doc.XY_Plane, [""])
sketch18.MapMode = "FlatFace"
sketch18.AttachmentOffset = App.Placement(V(0, 0, 6), App.Rotation())
sketch18.addGeometry([
    Part.LineSegment(V(-5, 36.4, 0), V(-5, 18.8, 0)),
    Part.ArcOfCircle(Part.Circle(V(-5, 27.6, 0), V(0, 0, 1), 8.8), math.radians(90), math.radians(270)),
], False)
sketch18.addGeometry(Part.LineSegment(V(-5, 36.4, 0), V(-5, 18.8, 0)), True)
sketch18.addConstraint([
    Sketcher.Constraint("Coincident", 0, 1, 1, 1),
    Sketcher.Constraint("Coincident", 1, 2, 0, 2),
    Sketcher.Constraint("Vertical", 0),
    Sketcher.Constraint("Vertical", 2),
    Sketcher.Constraint("Coincident", 2, 1, 0, 1),
    Sketcher.Constraint("Vertical", 1, 3, 0, 1),
    Sketcher.Constraint("Equal", 0, 2),
    Sketcher.Constraint("Radius", 1, Q("8.8 mm")),
    Sketcher.Constraint("DistanceX", 1, 3, -1, 1, Q("5 mm")),
    Sketcher.Constraint("DistanceY", -1, 1, 1, 3, Q("27.6 mm")),
])
groove = doc.addObject("PartDesign::Groove", "Groove")
body.addObject(groove)
groove.Profile = sketch18
groove.ReferenceAxis = (sketch18, ["Axis0"])
groove.Angle = 360

sketch19 = doc.addObject("Sketcher::SketchObject", "Sketch018")
body.addObject(sketch19)
sketch19.AttachmentSupport = (doc.XY_Plane, [""])
sketch19.MapMode = "FlatFace"
sketch19.AttachmentOffset = App.Placement(V(0, 0, 6), App.Rotation())
sketch19.addGeometry([
    Part.LineSegment(V(27, 18.698973, 0), V(27, 36.501027, 0)),
    Part.ArcOfCircle(Part.Circle(V(27, 27.6, 0), V(0, 0, 1), 8.901027), math.radians(-90), math.radians(90)),
], False)
sketch19.addGeometry(Part.LineSegment(V(27, 36.501027, 0), V(27, 18.698973, 0)), True)
sketch19.addConstraint([
    Sketcher.Constraint("Coincident", 0, 1, 1, 1),
    Sketcher.Constraint("Coincident", 1, 2, 0, 2),
    Sketcher.Constraint("Vertical", 0),
    Sketcher.Constraint("Vertical", 2),
    Sketcher.Constraint("Coincident", 2, 1, 1, 2),
    Sketcher.Constraint("Vertical", 1, 3, 0, 1),
    Sketcher.Constraint("Equal", 0, 2),
    Sketcher.Constraint("DistanceX", -1, 1, 1, 3, Q("27 mm")),
    Sketcher.Constraint("DistanceY", -1, 1, 1, 3, Q("27.6 mm")),
    Sketcher.Constraint("Radius", 1, Q("8.901027 mm")),
])
groove2 = doc.addObject("PartDesign::Groove", "Groove001")
body.addObject(groove2)
groove2.Profile = sketch19
groove2.ReferenceAxis = (sketch19, ["Axis0"])
groove2.Angle = 360

doc.recompute()
